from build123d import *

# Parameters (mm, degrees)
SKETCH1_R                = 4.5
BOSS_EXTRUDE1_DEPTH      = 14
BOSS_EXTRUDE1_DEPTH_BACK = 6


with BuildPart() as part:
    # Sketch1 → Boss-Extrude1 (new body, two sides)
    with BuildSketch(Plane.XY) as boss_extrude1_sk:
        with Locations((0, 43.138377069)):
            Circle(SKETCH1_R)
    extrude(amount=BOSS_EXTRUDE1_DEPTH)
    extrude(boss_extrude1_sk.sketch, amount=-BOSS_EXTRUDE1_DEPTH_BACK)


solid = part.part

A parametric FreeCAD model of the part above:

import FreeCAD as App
import Part
import Sketcher
from FreeCAD import Vector

doc = App.newDocument("Part")
params = doc.addObject("Spreadsheet::Sheet", "Params")
for row, (alias, value) in enumerate([
    ("sketch1_diameter", "9 mm"),
    ("pad1_length", "14 mm"),
    ("pad1_length2", "6 mm"),
], start=1):
    params.set(f"A{row}", alias)
    params.set(f"B{row}", "=" + value)
    params.setAlias(f"B{row}", alias)

body = doc.addObject("PartDesign::Body", "Body")

# Sketch on XY plane
sketch1 = body.newObject("Sketcher::SketchObject", "Sketch")
sketch1.AttachmentSupport = (doc.getObject("XY_Plane"), [""])
sketch1.MapMode = "FlatFace"
sketch1.addGeometry(Part.Circle(Vector(0, 43.1, 0), Vector(0, 0, 1), 4.5), False)
sketch1.addConstraint(Sketcher.Constraint("PointOnObject", 0, 3, -2))
sketch1.addConstraint(Sketcher.Constraint("Diameter", 0, 9.0))
sketch1.addConstraint(Sketcher.Constraint("DistanceY", -1, 1, 0, 3, 43.138377))
sketch1.setExpression("Constraints[1]", "Params.sketch1_diameter")
pad1 = body.newObject("PartDesign::Pad", "Pad")
pad1.Profile = sketch1
pad1.Type = "TwoLengths"
pad1.setExpression("Length", "Params.pad1_length")
pad1.setExpression("Length2", "Params.pad1_length2")

doc.recompute()
